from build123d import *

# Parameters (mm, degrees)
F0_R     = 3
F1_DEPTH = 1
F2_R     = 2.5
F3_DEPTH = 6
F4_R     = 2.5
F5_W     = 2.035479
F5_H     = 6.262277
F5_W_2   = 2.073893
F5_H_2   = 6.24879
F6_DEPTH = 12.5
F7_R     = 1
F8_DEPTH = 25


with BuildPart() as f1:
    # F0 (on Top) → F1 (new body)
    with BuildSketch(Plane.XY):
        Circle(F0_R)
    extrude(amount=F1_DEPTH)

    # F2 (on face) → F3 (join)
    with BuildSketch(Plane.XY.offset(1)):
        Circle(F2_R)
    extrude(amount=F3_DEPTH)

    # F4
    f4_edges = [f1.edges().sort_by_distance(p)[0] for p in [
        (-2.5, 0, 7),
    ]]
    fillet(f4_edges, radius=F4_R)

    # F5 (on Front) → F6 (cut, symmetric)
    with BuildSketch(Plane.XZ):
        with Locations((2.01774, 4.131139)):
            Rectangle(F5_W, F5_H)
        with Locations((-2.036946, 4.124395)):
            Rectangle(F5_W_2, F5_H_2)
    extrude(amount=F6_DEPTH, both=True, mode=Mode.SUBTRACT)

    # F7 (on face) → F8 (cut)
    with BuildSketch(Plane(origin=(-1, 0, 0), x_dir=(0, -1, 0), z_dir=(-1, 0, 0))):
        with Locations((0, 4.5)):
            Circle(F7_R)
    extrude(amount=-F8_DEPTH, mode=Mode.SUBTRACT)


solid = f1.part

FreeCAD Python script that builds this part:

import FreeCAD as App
import Part
import Sketcher

V = App.Vector


def edges_at(feature, points):
    """Names of the edges that pass closest to the given points."""
    edges = feature.Shape.Edges
    near = lambda p: min(range(len(edges)), key=lambda i: edges[i].distToShape(Part.Vertex(*p))[0])
    return sorted({f"Edge{near(p) + 1}" for p in points})


def add_polygon(sketch, points):
    """Adds a closed chain of lines whose ends are joined by coincident constraints."""
    first, n = sketch.GeometryCount, len(points)
    for a, b in zip(points, points[1:] + points[:1]):
        sketch.addGeometry(Part.LineSegment(App.Vector(*a, 0), App.Vector(*b, 0)), False)
    for i in range(n):
        sketch.addConstraint(Sketcher.Constraint("Coincident", first + i, 2, first + (i + 1) % n, 1))

doc = App.newDocument("Part")
params = doc.addObject("Spreadsheet::Sheet", "Params")
for row, (alias, value) in enumerate([
    ("sketch1_diameter", "6 mm"),
    ("pad1_length", "1 mm"),
    ("sketch2_diameter", "5 mm"),
    ("pad2_length", "6 mm"),
    ("fillet_radius", "2.5 mm"),
    ("pocket1_length", "25 mm"),
    ("sketch4_diameter", "2 mm"),
    ("pocket2_length", "25 mm"),
], start=1):
    params.set(f"A{row}", alias)
    params.set(f"B{row}", "=" + value)
    params.setAlias(f"B{row}", alias)

body = doc.addObject("PartDesign::Body", "Body")

sketch1 = body.newObject("Sketcher::SketchObject", "Sketch")
sketch1.AttachmentSupport = (doc.getObject("XY_Plane"), [""])
sketch1.MapMode = "FlatFace"
sketch1.addGeometry(Part.Circle(V(0, 0, 0), V(0, 0, 1), 3), False)
sketch1.addConstraint([
    Sketcher.Constraint("Coincident", 0, 3, -1, 1),
    Sketcher.Constraint("Diameter", 0, 6.0),
])
sketch1.setExpression("Constraints[1]", "Params.sketch1_diameter")
pad1 = body.newObject("PartDesign::Pad", "Pad")
pad1.Profile = sketch1
pad1.setExpression("Length", "Params.pad1_length")

sketch2 = body.newObject("Sketcher::SketchObject", "Sketch001")
sketch2.AttachmentSupport = (doc.getObject("XY_Plane"), [""])
sketch2.MapMode = "FlatFace"
sketch2.AttachmentOffset = App.Placement(V(0, 0, 1), App.Rotation())
sketch2.addGeometry(Part.Circle(V(0, 0, 0), V(0, 0, 1), 2.5), False)
sketch2.addConstraint([
    Sketcher.Constraint("Coincident", 0, 3, -1, 1),
    Sketcher.Constraint("Diameter", 0, 5.0),
])
sketch2.setExpression("Constraints[1]", "Params.sketch2_diameter")
pad2 = body.newObject("PartDesign::Pad", "Pad001")
pad2.Profile = sketch2
pad2.setExpression("Length", "Params.pad2_length")
doc.recompute()

fillet = body.newObject("PartDesign::Fillet", "Fillet")
fillet.Base = (pad2, edges_at(pad2, [(-2.5, 0, 7)]))
fillet.setExpression("Radius", "Params.fillet_radius")

sketch3 = body.newObject("Sketcher::SketchObject", "Sketch002")
sketch3.AttachmentSupport = (doc.getObject("XZ_Plane"), [""])
sketch3.MapMode = "FlatFace"
add_polygon(sketch3, [(1, 7.3), (1, 1), (3, 1), (3, 7.3)])
add_polygon(sketch3, [(-3.1, 7.2), (-3.1, 1), (-1, 1), (-1, 7.2)])
sketch3.addConstraint([
    Sketcher.Constraint("Vertical", 0),
    Sketcher.Constraint("Horizontal", 1),
    Sketcher.Constraint("Vertical", 2),
    Sketcher.Constraint("Horizontal", 3),
    Sketcher.Constraint("Vertical", 4),
    Sketcher.Constraint("Horizontal", 5),
    Sketcher.Constraint("Vertical", 6),
    Sketcher.Constraint("Horizontal", 7),
    Sketcher.Constraint("Symmetric", 0, 2, 5, 2, -2),
    Sketcher.Constraint("DistanceX", -1, 1, 0, 2, 1.000001),
    Sketcher.Constraint("DistanceY", -1, 1, 0, 2, 1.000001),
    Sketcher.Constraint("DistanceX", 1, 1, 1, 2, 2.035479),
    Sketcher.Constraint("DistanceY", 4, 2, 4, 1, 6.24879),
    Sketcher.Constraint("DistanceX", 5, 1, 5, 2, 2.073893),
    Sketcher.Constraint("DistanceY", 0, 2, 0, 1, 6.262277),
])
pocket1 = body.newObject("PartDesign::Pocket", "Pocket")
pocket1.Profile = sketch3
pocket1.setExpression("Length", "Params.pocket1_length")
pocket1.Midplane = True

sketch4 = body.newObject("Sketcher::SketchObject", "Sketch003")
sketch4.AttachmentSupport = (doc.getObject("YZ_Plane"), [""])
sketch4.MapMode = "FlatFace"
sketch4.AttachmentOffset = App.Placement(V(0, 0, -1), App.Rotation())
sketch4.addGeometry(Part.Circle(V(0, 4.5, 0), V(0, 0, 1), 1), False)
sketch4.addConstraint([
    Sketcher.Constraint("PointOnObject", 0, 3, -2),
    Sketcher.Constraint("Diameter", 0, 2.0),
    Sketcher.Constraint("DistanceY", -1, 1, 0, 3, 4.5),
])
sketch4.setExpression("Constraints[1]", "Params.sketch4_diameter")
pocket2 = body.newObject("PartDesign::Pocket", "Pocket001")
pocket2.Profile = sketch4
pocket2.setExpression("Length", "Params.pocket2_length")
pocket2.Reversed = True

doc.recompute()
